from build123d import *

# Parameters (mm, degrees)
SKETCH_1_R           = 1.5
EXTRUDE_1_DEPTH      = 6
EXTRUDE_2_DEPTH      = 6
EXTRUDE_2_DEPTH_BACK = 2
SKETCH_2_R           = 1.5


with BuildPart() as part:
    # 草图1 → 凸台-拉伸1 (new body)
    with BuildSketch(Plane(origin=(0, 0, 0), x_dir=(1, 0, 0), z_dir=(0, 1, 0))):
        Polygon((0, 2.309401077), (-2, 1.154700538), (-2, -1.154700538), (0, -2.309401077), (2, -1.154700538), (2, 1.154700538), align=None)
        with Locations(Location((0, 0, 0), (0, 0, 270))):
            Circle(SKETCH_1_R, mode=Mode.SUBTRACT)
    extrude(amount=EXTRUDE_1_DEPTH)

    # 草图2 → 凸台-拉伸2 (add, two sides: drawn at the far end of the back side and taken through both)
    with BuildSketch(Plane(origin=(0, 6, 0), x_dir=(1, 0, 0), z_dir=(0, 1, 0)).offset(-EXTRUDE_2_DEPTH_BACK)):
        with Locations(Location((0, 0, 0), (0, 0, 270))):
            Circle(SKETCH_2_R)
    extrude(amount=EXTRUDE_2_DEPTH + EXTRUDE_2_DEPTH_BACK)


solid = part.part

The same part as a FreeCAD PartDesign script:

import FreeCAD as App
import Part
import Sketcher

V = App.Vector
Q = App.Units.Quantity

doc = App.newDocument("Part")
body = doc.addObject("PartDesign::Body", "Body")

# Sketch on XZ plane
sketch1 = body.newObject("Sketcher::SketchObject", "Sketch")
sketch1.AttachmentSupport = (doc.getObject("XZ_Plane"), [""])
sketch1.MapMode = "FlatFace"
sketch1.addGeometry([
    Part.LineSegment(V(0, -2.3, 0), V(-2, -1.2, 0)),  # 0
    Part.LineSegment(V(-2, -1.2, 0), V(-2, 1.2, 0)),  # 1
    Part.LineSegment(V(-2, 1.2, 0), V(0, 2.3, 0)),  # 2
    Part.LineSegment(V(0, 2.3, 0), V(2, 1.2, 0)),  # 3
    Part.LineSegment(V(2, 1.2, 0), V(2, -1.2, 0)),  # 4
    Part.LineSegment(V(2, -1.2, 0), V(0, -2.3, 0)),  # 5
    Part.Circle(V(0, 0, 0), V(0, 0, 1), 1.5),  # 6
], False)
sketch1.addConstraint([
    Sketcher.Constraint("Coincident", 0, 2, 1, 1),
    Sketcher.Constraint("Coincident", 1, 2, 2, 1),
    Sketcher.Constraint("Coincident", 2, 2, 3, 1),
    Sketcher.Constraint("Coincident", 3, 2, 4, 1),
    Sketcher.Constraint("Coincident", 4, 2, 5, 1),
    Sketcher.Constraint("Coincident", 5, 2, 0, 1),
    Sketcher.Constraint("Vertical", 1),
    Sketcher.Constraint("Vertical", 4),
    Sketcher.Constraint("Coincident", 6, 3, -1, 1),
    Sketcher.Constraint("Symmetric", 0, 2, 3, 2, -1, 1),
    Sketcher.Constraint("Symmetric", 2, 2, 5, 2, -1, 1),
    Sketcher.Constraint("PointOnObject", 2, 2, -2),
    Sketcher.Constraint("Parallel", 2, 5),
    Sketcher.Constraint("Horizontal", 1, 2, 3, 2),
    Sketcher.Constraint("Diameter", 6, 3.0),
    Sketcher.Constraint("Angle", 0, Q("150 deg")),
    Sketcher.Constraint("DistanceX", 0, 2, -1, 1, 2.0),
    Sketcher.Constraint("DistanceY", 1, 1, 1, 2, 2.309401),
])
pad1 = body.newObject("PartDesign::Pad", "Pad")
pad1.Profile = sketch1
pad1.Length = 6
pad1.Reversed = True

# Sketch on XZ plane
sketch2 = body.newObject("Sketcher::SketchObject", "Sketch001")
sketch2.AttachmentSupport = (doc.getObject("XZ_Plane"), [""])
sketch2.MapMode = "FlatFace"
sketch2.AttachmentOffset = App.Placement(V(0, 0, -6), App.Rotation())
sketch2.addGeometry(Part.Circle(V(0, 0, 0), V(0, 0, 1), 1.5), False)
sketch2.addConstraint([
    Sketcher.Constraint("Coincident", 0, 3, -1, 1),
    Sketcher.Constraint("Diameter", 0, 3.0),
])
pad2 = body.newObject("PartDesign::Pad", "Pad001")
pad2.Profile = sketch2
pad2.Type = "TwoLengths"
pad2.Length = 6
pad2.Length2 = 2
pad2.Reversed = True

doc.recompute()
